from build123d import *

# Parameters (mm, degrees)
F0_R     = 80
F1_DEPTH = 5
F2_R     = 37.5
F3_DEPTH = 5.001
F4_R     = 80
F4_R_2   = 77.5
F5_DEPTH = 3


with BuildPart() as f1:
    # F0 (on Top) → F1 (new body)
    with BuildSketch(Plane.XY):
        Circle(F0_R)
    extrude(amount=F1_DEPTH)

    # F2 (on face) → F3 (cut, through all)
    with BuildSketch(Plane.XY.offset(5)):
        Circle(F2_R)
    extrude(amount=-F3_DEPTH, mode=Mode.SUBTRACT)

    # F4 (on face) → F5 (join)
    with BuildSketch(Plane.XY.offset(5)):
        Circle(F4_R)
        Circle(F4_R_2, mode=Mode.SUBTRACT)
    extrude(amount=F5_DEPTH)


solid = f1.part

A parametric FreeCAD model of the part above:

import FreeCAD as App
import Part
import Sketcher
Q = App.Units.Quantity

doc = App.newDocument("Part")
params = doc.addObject("Spreadsheet::Sheet", "Params")
for row, (alias, value) in enumerate([
    ("sketch1_diameter", "160 mm"),
    ("pad1_length", "5 mm"),
    ("sketch2_diameter", "75 mm"),
    ("sketch3_diameter", "160 mm"),
    ("sketch3_diameter2", "155 mm"),
    ("pad2_length", "3 mm"),
], start=1):
    params.set(f"A{row}", alias)
    params.set(f"B{row}", "=" + value)
    params.setAlias(f"B{row}", alias)

body = doc.addObject("PartDesign::Body", "Body")

# Sketch on XY plane
sketch1 = body.newObject("Sketcher::SketchObject", "Sketch")
sketch1.AttachmentSupport = (doc.getObject("XY_Plane"), [""])
sketch1.MapMode = "FlatFace"
sketch1.addGeometry(Part.Circle(App.Vector(0, 0, 0), App.Vector(0, 0, 1), 80), False)
sketch1.addConstraint([
    Sketcher.Constraint("Coincident", 0, 3, -1, 1),
    Sketcher.Constraint("Diameter", 0, Q("160 mm")),
])
sketch1.setExpression("Constraints[1]", "Params.sketch1_diameter")
pad1 = body.newObject("PartDesign::Pad", "Pad")
pad1.Profile = sketch1
pad1.setExpression("Length", "Params.pad1_length")

# Sketch on XY plane
sketch2 = body.newObject("Sketcher::SketchObject", "Sketch001")
sketch2.AttachmentSupport = (doc.getObject("XY_Plane"), [""])
sketch2.MapMode = "FlatFace"
sketch2.AttachmentOffset = App.Placement(App.Vector(0, 0, 5), App.Rotation())
sketch2.addGeometry(Part.Circle(App.Vector(0, 0, 0), App.Vector(0, 0, 1), 38), False)
sketch2.addConstraint([
    Sketcher.Constraint("Coincident", 0, 3, -1, 1),
    Sketcher.Constraint("Diameter", 0, Q("75 mm")),
])
sketch2.setExpression("Constraints[1]", "Params.sketch2_diameter")
pocket1 = body.newObject("PartDesign::Pocket", "Pocket")
pocket1.Profile = sketch2
pocket1.Type = "ThroughAll"

# Sketch on XY plane
sketch3 = body.newObject("Sketcher::SketchObject", "Sketch002")
sketch3.AttachmentSupport = (doc.getObject("XY_Plane"), [""])
sketch3.MapMode = "FlatFace"
sketch3.AttachmentOffset = App.Placement(App.Vector(0, 0, 5), App.Rotation())
sketch3.addGeometry([
    Part.Circle(App.Vector(0, 0, 0), App.Vector(0, 0, 1), 80),
    Part.Circle(App.Vector(0, 0, 0), App.Vector(0, 0, 1), 78),
], False)
sketch3.addConstraint([
    Sketcher.Constraint("Coincident", 0, 3, -1, 1),
    Sketcher.Constraint("Coincident", 1, 3, -1, 1),
    Sketcher.Constraint("Diameter", 0, Q("160 mm")),
    Sketcher.Constraint("Diameter", 1, Q("155 mm")),
])
sketch3.setExpression("Constraints[2]", "Params.sketch3_diameter")
sketch3.setExpression("Constraints[3]", "Params.sketch3_diameter2")
pad2 = body.newObject("PartDesign::Pad", "Pad001")
pad2.Profile = sketch3
pad2.setExpression("Length", "Params.pad2_length")

doc.recompute()
